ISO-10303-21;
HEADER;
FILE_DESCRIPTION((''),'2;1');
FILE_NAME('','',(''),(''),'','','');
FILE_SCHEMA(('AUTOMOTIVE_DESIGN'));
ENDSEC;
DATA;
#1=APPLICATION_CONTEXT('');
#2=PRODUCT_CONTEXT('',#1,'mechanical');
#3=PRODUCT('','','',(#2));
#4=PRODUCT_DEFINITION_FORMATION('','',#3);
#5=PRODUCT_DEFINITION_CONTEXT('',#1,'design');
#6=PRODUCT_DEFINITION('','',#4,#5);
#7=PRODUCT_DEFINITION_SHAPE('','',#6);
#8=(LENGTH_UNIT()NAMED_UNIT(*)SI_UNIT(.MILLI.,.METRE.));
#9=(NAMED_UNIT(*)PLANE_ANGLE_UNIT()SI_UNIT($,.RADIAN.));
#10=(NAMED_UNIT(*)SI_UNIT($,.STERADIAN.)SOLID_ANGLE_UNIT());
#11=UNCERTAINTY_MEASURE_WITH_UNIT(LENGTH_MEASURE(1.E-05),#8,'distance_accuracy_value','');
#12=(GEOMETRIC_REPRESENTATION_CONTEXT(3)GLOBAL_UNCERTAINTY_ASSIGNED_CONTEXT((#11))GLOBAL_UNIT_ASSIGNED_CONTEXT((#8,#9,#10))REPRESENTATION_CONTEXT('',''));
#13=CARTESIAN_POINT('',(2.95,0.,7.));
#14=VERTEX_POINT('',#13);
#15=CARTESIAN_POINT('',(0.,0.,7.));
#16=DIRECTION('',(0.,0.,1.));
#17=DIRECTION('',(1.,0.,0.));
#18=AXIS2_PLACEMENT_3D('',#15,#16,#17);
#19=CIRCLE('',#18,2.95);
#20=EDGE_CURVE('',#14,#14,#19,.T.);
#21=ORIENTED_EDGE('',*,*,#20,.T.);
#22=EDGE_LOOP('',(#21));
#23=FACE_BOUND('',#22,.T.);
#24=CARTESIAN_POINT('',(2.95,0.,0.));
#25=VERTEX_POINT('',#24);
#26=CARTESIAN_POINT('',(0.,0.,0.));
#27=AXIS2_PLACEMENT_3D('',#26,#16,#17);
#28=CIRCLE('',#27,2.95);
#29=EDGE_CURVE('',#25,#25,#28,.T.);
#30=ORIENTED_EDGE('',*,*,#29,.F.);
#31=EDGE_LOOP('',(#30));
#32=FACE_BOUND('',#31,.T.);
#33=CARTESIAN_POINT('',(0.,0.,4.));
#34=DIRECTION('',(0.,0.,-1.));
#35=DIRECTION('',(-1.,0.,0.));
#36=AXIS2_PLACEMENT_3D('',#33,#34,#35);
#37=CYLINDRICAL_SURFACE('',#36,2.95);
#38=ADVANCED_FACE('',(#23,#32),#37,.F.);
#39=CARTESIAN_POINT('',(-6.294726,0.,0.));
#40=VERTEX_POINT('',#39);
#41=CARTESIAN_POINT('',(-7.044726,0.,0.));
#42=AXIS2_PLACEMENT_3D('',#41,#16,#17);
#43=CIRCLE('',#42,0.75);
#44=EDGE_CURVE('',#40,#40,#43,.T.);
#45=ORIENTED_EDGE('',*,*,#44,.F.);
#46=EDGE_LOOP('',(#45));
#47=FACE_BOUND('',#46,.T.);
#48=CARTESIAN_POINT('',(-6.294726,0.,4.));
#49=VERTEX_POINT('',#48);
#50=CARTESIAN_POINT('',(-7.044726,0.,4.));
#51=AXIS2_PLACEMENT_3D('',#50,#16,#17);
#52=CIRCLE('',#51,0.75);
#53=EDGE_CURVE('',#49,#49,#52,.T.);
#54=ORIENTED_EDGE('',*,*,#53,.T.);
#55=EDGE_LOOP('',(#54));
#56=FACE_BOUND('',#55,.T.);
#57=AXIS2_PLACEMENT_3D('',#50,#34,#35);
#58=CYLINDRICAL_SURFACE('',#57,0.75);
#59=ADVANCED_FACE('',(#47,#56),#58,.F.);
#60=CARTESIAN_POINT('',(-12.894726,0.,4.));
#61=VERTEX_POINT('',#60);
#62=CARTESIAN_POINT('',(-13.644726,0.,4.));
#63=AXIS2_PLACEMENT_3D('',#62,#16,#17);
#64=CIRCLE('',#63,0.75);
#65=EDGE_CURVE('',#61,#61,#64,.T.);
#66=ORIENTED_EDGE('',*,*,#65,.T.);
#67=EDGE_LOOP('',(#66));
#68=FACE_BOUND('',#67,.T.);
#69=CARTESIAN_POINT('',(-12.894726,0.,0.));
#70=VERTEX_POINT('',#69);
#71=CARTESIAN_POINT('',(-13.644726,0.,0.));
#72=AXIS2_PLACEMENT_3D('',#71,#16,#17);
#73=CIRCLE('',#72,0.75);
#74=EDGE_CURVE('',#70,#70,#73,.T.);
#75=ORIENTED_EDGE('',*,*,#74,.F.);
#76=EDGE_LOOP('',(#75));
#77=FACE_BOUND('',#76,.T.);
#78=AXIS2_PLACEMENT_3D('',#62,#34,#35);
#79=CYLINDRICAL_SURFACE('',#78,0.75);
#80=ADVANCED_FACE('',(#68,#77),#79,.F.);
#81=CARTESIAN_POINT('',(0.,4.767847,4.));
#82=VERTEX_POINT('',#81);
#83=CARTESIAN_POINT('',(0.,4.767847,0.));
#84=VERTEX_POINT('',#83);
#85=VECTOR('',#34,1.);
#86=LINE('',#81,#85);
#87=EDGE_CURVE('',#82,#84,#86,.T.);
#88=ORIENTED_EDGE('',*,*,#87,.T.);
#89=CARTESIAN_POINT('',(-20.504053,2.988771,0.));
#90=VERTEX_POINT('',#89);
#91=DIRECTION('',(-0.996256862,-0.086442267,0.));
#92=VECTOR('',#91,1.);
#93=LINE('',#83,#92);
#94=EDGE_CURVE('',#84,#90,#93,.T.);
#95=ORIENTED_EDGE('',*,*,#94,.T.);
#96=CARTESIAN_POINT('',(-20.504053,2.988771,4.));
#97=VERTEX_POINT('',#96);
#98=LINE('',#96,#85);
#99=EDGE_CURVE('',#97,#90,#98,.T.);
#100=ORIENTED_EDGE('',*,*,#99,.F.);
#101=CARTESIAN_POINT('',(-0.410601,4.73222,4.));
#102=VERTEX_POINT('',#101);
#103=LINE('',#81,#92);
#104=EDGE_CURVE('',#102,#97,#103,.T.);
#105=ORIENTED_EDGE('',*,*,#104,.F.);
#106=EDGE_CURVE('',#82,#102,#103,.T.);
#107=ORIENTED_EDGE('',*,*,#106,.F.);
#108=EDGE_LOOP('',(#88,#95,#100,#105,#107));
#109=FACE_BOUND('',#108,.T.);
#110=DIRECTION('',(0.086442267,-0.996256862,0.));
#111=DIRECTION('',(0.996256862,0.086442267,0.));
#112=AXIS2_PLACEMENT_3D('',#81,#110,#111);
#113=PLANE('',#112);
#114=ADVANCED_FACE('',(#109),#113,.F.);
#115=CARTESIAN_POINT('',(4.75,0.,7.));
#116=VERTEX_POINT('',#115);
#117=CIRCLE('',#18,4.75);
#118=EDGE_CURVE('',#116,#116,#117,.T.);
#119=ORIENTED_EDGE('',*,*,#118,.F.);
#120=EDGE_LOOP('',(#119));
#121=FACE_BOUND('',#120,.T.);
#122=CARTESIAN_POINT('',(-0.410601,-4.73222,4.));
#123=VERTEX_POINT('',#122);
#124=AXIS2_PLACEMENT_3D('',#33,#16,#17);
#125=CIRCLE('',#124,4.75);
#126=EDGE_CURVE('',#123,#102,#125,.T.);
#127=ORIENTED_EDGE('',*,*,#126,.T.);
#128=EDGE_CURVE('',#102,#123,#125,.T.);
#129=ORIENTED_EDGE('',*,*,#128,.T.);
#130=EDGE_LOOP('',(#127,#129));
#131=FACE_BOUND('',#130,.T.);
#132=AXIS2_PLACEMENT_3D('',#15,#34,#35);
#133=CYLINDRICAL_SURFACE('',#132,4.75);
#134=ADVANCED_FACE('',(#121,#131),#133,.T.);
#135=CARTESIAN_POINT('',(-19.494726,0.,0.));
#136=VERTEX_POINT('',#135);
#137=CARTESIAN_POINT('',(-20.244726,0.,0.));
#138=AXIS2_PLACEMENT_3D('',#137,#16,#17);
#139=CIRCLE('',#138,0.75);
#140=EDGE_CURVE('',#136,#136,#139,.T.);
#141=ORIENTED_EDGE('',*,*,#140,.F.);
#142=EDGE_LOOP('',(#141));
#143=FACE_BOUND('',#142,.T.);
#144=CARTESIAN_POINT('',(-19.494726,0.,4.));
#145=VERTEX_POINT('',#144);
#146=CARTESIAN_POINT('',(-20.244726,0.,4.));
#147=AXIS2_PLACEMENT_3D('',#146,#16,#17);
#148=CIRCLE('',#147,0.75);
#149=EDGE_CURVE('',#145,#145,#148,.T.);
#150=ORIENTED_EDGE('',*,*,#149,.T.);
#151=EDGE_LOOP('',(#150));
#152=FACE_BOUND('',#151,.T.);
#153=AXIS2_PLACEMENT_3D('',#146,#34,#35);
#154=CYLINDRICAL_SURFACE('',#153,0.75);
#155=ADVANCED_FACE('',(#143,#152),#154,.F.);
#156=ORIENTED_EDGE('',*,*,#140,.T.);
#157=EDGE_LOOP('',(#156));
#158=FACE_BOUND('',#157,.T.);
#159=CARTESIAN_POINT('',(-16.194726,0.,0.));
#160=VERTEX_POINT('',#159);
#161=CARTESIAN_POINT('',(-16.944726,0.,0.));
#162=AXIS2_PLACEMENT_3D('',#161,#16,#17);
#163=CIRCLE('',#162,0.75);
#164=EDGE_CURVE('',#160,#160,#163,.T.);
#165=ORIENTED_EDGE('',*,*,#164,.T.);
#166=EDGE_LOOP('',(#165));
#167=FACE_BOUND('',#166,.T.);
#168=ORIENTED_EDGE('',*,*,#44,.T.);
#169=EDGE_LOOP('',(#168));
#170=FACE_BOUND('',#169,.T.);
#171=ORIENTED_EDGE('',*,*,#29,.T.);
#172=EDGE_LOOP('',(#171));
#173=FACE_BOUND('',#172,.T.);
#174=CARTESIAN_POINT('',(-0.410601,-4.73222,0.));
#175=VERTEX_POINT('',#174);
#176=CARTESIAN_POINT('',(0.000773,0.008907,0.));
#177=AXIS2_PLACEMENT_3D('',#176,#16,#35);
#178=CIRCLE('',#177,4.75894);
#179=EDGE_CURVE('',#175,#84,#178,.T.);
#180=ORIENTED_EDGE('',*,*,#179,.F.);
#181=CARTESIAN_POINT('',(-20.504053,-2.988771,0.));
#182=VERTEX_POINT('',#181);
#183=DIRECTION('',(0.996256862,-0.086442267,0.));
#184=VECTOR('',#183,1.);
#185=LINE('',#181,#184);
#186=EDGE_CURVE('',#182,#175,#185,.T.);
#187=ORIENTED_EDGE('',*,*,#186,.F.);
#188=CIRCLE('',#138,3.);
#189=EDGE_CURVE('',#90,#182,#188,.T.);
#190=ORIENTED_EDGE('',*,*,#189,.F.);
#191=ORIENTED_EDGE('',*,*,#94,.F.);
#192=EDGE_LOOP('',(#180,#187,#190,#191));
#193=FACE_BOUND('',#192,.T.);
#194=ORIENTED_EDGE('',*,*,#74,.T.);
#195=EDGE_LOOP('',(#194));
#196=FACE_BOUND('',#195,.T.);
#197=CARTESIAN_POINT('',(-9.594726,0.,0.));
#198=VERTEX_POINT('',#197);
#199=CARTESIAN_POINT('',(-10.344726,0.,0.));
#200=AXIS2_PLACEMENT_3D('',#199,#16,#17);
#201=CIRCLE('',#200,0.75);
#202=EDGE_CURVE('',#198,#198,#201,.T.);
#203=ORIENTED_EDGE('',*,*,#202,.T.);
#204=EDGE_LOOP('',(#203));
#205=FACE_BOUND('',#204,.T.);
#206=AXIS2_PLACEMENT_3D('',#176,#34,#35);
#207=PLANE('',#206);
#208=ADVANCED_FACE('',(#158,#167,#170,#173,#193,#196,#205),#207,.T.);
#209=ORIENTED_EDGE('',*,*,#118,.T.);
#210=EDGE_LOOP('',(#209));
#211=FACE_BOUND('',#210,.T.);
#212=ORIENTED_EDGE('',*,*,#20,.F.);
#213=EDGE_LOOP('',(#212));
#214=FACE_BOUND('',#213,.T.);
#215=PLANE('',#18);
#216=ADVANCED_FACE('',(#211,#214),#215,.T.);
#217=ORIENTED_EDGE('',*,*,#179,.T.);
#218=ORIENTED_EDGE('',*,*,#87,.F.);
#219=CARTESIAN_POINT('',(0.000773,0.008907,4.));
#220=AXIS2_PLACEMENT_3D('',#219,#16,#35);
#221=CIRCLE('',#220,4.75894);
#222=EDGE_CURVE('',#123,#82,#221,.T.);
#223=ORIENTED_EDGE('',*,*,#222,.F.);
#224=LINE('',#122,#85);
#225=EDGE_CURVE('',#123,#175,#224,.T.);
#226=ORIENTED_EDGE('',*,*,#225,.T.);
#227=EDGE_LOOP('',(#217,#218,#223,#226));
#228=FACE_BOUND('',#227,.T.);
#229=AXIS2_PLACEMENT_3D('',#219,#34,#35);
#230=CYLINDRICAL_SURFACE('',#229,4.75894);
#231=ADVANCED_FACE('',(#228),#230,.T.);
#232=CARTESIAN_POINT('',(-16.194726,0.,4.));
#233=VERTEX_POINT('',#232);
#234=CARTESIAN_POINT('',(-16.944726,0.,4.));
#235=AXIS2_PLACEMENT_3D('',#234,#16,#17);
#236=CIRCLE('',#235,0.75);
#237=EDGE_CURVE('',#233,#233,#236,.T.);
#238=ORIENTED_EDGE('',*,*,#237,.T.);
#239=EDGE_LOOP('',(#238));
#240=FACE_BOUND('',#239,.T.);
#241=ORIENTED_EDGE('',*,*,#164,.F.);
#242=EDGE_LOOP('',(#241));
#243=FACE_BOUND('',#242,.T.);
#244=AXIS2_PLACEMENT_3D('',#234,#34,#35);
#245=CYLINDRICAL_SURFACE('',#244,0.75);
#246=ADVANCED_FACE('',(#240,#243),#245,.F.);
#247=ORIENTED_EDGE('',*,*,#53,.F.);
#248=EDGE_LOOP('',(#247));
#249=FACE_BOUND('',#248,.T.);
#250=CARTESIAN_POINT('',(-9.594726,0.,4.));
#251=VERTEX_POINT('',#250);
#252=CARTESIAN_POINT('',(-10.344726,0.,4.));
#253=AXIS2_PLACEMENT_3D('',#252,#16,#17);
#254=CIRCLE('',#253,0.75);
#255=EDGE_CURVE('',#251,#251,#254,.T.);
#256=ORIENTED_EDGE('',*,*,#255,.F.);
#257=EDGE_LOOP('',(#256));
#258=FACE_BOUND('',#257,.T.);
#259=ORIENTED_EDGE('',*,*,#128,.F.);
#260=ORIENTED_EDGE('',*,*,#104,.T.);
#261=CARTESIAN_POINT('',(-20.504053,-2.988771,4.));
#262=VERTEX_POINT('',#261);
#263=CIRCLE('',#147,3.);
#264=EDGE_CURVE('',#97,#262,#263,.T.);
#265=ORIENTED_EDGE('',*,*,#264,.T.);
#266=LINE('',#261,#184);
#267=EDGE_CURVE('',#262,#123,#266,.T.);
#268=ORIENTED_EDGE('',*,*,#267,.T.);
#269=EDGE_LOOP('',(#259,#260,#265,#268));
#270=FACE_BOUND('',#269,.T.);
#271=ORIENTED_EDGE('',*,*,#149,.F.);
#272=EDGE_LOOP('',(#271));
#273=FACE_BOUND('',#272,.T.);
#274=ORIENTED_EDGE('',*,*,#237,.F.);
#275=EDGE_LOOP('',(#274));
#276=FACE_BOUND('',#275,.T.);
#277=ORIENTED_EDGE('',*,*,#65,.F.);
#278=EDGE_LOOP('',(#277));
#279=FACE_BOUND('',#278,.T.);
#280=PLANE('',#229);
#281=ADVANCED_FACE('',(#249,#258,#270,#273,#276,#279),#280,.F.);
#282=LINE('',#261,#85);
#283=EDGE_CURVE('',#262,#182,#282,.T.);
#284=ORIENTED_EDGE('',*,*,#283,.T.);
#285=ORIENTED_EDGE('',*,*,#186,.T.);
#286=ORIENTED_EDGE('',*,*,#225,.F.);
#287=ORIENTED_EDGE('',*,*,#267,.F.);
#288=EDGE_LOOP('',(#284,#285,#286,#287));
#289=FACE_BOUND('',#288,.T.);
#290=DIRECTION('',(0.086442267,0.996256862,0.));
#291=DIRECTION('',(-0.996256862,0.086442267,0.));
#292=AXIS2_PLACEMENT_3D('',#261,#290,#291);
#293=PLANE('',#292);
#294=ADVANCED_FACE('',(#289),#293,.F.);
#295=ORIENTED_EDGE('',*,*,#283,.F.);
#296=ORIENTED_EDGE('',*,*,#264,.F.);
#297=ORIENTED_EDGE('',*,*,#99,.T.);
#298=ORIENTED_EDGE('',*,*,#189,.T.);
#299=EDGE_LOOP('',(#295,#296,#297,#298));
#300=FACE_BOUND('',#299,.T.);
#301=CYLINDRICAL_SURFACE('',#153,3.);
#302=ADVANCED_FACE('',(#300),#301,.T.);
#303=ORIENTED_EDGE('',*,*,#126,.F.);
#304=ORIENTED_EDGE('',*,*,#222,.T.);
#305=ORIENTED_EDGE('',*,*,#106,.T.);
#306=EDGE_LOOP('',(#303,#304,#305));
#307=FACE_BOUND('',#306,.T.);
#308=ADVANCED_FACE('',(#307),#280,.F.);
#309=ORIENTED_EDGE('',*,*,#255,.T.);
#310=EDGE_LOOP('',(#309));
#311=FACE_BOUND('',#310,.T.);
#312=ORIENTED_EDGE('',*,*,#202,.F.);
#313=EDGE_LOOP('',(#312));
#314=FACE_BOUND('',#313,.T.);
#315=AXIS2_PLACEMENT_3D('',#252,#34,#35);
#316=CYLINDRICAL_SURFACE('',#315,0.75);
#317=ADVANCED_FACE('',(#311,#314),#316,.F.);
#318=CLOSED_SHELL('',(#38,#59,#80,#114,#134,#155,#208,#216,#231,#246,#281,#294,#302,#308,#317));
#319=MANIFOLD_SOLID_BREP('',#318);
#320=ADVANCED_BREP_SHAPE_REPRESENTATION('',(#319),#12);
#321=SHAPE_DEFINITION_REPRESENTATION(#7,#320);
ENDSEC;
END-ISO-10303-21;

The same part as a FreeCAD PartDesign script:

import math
import FreeCAD as App
import Part
import Sketcher
from FreeCAD import Vector
Q = App.Units.Quantity

doc = App.newDocument("Part")
params = doc.addObject("Spreadsheet::Sheet", "Params")
for row, (alias, value) in enumerate([
    ("sketch1_radius", "3 mm"),
    ("sketch1_diameter", "1.5 mm"),
    ("sketch1_diameter2", "5.9 mm"),
    ("pad1_length", "4 mm"),
    ("sketch2_diameter", "9.5 mm"),
    ("sketch2_diameter2", "5.9 mm"),
    ("pad2_length", "3 mm"),
], start=1):
    params.set(f"A{row}", alias)
    params.set(f"B{row}", "=" + value)
    params.setAlias(f"B{row}", alias)

body = doc.addObject("PartDesign::Body", "Body")

# Sketch on XY plane
sketch1 = doc.addObject("Sketcher::SketchObject", "Sketch")
body.addObject(sketch1)
sketch1.AttachmentSupport = (doc.XY_Plane, [""])
sketch1.MapMode = "FlatFace"
sketch1.addGeometry(Part.LineSegment(Vector(0, 4.767847, 0), Vector(-20.504053, 2.988771, 0)), False)
sketch1.addGeometry(Part.ArcOfCircle(Part.Circle(Vector(-20.244726, 0, 0), Vector(0, 0, 1), 3), math.radians(94.958966), math.radians(265.041034)), False)
sketch1.addGeometry(Part.LineSegment(Vector(-20.504053, -2.988771, 0), Vector(-0.410601, -4.73222, 0)), False)
sketch1.addGeometry(Part.ArcOfCircle(Part.Circle(Vector(0.000773, 0.008907, 0), Vector(0, 0, 1), 4.75894), math.radians(-94.958966), math.radians(90.009304)), False)
sketch1.addGeometry(Part.Circle(Vector(-20.244726, 0, 0), Vector(0, 0, 1), 0.75), False)
sketch1.addGeometry(Part.Circle(Vector(-16.944726, 0, 0), Vector(0, 0, 1), 0.75), False)
sketch1.addGeometry(Part.Circle(Vector(-13.644726, 0, 0), Vector(0, 0, 1), 0.75), False)
sketch1.addGeometry(Part.Circle(Vector(-10.344726, 0, 0), Vector(0, 0, 1), 0.75), False)
sketch1.addGeometry(Part.Circle(Vector(-7.044726, 0, 0), Vector(0, 0, 1), 0.75), False)
sketch1.addGeometry(Part.Circle(Vector(0, 0, 0), Vector(0, 0, 1), 2.95), False)
sketch1.addConstraint(Sketcher.Constraint("Tangent", 0, 2, 1, 1))
sketch1.addConstraint(Sketcher.Constraint("Tangent", 1, 2, 2, 1))
sketch1.addConstraint(Sketcher.Constraint("Tangent", 2, 2, 3, 1))
sketch1.addConstraint(Sketcher.Constraint("Coincident", 3, 2, 0, 1))
sketch1.addConstraint(Sketcher.Constraint("Coincident", 9, 3, -1, 1))
sketch1.addConstraint(Sketcher.Constraint("Coincident", 4, 3, 1, 3))
sketch1.addConstraint(Sketcher.Constraint("Equal", 4, 5))
sketch1.addConstraint(Sketcher.Constraint("Equal", 5, 6))
sketch1.addConstraint(Sketcher.Constraint("Equal", 6, 7))
sketch1.addConstraint(Sketcher.Constraint("Equal", 7, 8))
sketch1.addConstraint(Sketcher.Constraint("Symmetric", 0, 2, 1, 2, -1))
sketch1.addConstraint(Sketcher.Constraint("PointOnObject", 5, 3, -1))
sketch1.addConstraint(Sketcher.Constraint("PointOnObject", 6, 3, -1))
sketch1.addConstraint(Sketcher.Constraint("PointOnObject", 7, 3, -1))
sketch1.addConstraint(Sketcher.Constraint("PointOnObject", 8, 3, -1))
sketch1.addConstraint(Sketcher.Constraint("PointOnObject", 3, 2, -2))
sketch1.addConstraint(Sketcher.Constraint("Radius", 1, Q("3 mm")))
sketch1.addConstraint(Sketcher.Constraint("Diameter", 4, Q("1.5 mm")))
sketch1.addConstraint(Sketcher.Constraint("Diameter", 9, Q("5.9 mm")))
sketch1.addConstraint(Sketcher.Constraint("DistanceX", 1, 3, 5, 3, Q("3.3 mm")))
sketch1.addConstraint(Sketcher.Constraint("DistanceX", 5, 3, 6, 3, Q("3.3 mm")))
sketch1.addConstraint(Sketcher.Constraint("DistanceX", 6, 3, 7, 3, Q("3.3 mm")))
sketch1.addConstraint(Sketcher.Constraint("DistanceX", 7, 3, 8, 3, Q("3.3 mm")))
sketch1.addConstraint(Sketcher.Constraint("Radius", 3, Q("4.75894 mm")))
sketch1.addConstraint(Sketcher.Constraint("DistanceX", 2, 2, -1, 1, Q("0.410601 mm")))
sketch1.addConstraint(Sketcher.Constraint("DistanceX", 1, 3, 3, 3, Q("20.245499 mm")))
sketch1.setExpression("Constraints[16]", "Params.sketch1_radius")
sketch1.setExpression("Constraints[17]", "Params.sketch1_diameter")
sketch1.setExpression("Constraints[18]", "Params.sketch1_diameter2")
pad1 = doc.addObject("PartDesign::Pad", "Pad")
body.addObject(pad1)
pad1.Profile = sketch1
pad1.setExpression("Length", "Params.pad1_length")

# Sketch on XY plane
sketch2 = doc.addObject("Sketcher::SketchObject", "Sketch001")
body.addObject(sketch2)
sketch2.AttachmentSupport = (doc.XY_Plane, [""])
sketch2.MapMode = "FlatFace"
sketch2.AttachmentOffset = App.Placement(Vector(0, 0, 4), App.Rotation())
sketch2.addGeometry(Part.Circle(Vector(0, 0, 0), Vector(0, 0, 1), 4.75), False)
sketch2.addGeometry(Part.Circle(Vector(0, 0, 0), Vector(0, 0, 1), 2.95), False)
sketch2.addConstraint(Sketcher.Constraint("Coincident", 0, 3, -1, 1))
sketch2.addConstraint(Sketcher.Constraint("Coincident", 1, 3, -1, 1))
sketch2.addConstraint(Sketcher.Constraint("Diameter", 0, Q("9.5 mm")))
sketch2.addConstraint(Sketcher.Constraint("Diameter", 1, Q("5.9 mm")))
sketch2.setExpression("Constraints[2]", "Params.sketch2_diameter")
sketch2.setExpression("Constraints[3]", "Params.sketch2_diameter2")
pad2 = doc.addObject("PartDesign::Pad", "Pad001")
body.addObject(pad2)
pad2.Profile = sketch2
pad2.setExpression("Length", "Params.pad2_length")

doc.recompute()
